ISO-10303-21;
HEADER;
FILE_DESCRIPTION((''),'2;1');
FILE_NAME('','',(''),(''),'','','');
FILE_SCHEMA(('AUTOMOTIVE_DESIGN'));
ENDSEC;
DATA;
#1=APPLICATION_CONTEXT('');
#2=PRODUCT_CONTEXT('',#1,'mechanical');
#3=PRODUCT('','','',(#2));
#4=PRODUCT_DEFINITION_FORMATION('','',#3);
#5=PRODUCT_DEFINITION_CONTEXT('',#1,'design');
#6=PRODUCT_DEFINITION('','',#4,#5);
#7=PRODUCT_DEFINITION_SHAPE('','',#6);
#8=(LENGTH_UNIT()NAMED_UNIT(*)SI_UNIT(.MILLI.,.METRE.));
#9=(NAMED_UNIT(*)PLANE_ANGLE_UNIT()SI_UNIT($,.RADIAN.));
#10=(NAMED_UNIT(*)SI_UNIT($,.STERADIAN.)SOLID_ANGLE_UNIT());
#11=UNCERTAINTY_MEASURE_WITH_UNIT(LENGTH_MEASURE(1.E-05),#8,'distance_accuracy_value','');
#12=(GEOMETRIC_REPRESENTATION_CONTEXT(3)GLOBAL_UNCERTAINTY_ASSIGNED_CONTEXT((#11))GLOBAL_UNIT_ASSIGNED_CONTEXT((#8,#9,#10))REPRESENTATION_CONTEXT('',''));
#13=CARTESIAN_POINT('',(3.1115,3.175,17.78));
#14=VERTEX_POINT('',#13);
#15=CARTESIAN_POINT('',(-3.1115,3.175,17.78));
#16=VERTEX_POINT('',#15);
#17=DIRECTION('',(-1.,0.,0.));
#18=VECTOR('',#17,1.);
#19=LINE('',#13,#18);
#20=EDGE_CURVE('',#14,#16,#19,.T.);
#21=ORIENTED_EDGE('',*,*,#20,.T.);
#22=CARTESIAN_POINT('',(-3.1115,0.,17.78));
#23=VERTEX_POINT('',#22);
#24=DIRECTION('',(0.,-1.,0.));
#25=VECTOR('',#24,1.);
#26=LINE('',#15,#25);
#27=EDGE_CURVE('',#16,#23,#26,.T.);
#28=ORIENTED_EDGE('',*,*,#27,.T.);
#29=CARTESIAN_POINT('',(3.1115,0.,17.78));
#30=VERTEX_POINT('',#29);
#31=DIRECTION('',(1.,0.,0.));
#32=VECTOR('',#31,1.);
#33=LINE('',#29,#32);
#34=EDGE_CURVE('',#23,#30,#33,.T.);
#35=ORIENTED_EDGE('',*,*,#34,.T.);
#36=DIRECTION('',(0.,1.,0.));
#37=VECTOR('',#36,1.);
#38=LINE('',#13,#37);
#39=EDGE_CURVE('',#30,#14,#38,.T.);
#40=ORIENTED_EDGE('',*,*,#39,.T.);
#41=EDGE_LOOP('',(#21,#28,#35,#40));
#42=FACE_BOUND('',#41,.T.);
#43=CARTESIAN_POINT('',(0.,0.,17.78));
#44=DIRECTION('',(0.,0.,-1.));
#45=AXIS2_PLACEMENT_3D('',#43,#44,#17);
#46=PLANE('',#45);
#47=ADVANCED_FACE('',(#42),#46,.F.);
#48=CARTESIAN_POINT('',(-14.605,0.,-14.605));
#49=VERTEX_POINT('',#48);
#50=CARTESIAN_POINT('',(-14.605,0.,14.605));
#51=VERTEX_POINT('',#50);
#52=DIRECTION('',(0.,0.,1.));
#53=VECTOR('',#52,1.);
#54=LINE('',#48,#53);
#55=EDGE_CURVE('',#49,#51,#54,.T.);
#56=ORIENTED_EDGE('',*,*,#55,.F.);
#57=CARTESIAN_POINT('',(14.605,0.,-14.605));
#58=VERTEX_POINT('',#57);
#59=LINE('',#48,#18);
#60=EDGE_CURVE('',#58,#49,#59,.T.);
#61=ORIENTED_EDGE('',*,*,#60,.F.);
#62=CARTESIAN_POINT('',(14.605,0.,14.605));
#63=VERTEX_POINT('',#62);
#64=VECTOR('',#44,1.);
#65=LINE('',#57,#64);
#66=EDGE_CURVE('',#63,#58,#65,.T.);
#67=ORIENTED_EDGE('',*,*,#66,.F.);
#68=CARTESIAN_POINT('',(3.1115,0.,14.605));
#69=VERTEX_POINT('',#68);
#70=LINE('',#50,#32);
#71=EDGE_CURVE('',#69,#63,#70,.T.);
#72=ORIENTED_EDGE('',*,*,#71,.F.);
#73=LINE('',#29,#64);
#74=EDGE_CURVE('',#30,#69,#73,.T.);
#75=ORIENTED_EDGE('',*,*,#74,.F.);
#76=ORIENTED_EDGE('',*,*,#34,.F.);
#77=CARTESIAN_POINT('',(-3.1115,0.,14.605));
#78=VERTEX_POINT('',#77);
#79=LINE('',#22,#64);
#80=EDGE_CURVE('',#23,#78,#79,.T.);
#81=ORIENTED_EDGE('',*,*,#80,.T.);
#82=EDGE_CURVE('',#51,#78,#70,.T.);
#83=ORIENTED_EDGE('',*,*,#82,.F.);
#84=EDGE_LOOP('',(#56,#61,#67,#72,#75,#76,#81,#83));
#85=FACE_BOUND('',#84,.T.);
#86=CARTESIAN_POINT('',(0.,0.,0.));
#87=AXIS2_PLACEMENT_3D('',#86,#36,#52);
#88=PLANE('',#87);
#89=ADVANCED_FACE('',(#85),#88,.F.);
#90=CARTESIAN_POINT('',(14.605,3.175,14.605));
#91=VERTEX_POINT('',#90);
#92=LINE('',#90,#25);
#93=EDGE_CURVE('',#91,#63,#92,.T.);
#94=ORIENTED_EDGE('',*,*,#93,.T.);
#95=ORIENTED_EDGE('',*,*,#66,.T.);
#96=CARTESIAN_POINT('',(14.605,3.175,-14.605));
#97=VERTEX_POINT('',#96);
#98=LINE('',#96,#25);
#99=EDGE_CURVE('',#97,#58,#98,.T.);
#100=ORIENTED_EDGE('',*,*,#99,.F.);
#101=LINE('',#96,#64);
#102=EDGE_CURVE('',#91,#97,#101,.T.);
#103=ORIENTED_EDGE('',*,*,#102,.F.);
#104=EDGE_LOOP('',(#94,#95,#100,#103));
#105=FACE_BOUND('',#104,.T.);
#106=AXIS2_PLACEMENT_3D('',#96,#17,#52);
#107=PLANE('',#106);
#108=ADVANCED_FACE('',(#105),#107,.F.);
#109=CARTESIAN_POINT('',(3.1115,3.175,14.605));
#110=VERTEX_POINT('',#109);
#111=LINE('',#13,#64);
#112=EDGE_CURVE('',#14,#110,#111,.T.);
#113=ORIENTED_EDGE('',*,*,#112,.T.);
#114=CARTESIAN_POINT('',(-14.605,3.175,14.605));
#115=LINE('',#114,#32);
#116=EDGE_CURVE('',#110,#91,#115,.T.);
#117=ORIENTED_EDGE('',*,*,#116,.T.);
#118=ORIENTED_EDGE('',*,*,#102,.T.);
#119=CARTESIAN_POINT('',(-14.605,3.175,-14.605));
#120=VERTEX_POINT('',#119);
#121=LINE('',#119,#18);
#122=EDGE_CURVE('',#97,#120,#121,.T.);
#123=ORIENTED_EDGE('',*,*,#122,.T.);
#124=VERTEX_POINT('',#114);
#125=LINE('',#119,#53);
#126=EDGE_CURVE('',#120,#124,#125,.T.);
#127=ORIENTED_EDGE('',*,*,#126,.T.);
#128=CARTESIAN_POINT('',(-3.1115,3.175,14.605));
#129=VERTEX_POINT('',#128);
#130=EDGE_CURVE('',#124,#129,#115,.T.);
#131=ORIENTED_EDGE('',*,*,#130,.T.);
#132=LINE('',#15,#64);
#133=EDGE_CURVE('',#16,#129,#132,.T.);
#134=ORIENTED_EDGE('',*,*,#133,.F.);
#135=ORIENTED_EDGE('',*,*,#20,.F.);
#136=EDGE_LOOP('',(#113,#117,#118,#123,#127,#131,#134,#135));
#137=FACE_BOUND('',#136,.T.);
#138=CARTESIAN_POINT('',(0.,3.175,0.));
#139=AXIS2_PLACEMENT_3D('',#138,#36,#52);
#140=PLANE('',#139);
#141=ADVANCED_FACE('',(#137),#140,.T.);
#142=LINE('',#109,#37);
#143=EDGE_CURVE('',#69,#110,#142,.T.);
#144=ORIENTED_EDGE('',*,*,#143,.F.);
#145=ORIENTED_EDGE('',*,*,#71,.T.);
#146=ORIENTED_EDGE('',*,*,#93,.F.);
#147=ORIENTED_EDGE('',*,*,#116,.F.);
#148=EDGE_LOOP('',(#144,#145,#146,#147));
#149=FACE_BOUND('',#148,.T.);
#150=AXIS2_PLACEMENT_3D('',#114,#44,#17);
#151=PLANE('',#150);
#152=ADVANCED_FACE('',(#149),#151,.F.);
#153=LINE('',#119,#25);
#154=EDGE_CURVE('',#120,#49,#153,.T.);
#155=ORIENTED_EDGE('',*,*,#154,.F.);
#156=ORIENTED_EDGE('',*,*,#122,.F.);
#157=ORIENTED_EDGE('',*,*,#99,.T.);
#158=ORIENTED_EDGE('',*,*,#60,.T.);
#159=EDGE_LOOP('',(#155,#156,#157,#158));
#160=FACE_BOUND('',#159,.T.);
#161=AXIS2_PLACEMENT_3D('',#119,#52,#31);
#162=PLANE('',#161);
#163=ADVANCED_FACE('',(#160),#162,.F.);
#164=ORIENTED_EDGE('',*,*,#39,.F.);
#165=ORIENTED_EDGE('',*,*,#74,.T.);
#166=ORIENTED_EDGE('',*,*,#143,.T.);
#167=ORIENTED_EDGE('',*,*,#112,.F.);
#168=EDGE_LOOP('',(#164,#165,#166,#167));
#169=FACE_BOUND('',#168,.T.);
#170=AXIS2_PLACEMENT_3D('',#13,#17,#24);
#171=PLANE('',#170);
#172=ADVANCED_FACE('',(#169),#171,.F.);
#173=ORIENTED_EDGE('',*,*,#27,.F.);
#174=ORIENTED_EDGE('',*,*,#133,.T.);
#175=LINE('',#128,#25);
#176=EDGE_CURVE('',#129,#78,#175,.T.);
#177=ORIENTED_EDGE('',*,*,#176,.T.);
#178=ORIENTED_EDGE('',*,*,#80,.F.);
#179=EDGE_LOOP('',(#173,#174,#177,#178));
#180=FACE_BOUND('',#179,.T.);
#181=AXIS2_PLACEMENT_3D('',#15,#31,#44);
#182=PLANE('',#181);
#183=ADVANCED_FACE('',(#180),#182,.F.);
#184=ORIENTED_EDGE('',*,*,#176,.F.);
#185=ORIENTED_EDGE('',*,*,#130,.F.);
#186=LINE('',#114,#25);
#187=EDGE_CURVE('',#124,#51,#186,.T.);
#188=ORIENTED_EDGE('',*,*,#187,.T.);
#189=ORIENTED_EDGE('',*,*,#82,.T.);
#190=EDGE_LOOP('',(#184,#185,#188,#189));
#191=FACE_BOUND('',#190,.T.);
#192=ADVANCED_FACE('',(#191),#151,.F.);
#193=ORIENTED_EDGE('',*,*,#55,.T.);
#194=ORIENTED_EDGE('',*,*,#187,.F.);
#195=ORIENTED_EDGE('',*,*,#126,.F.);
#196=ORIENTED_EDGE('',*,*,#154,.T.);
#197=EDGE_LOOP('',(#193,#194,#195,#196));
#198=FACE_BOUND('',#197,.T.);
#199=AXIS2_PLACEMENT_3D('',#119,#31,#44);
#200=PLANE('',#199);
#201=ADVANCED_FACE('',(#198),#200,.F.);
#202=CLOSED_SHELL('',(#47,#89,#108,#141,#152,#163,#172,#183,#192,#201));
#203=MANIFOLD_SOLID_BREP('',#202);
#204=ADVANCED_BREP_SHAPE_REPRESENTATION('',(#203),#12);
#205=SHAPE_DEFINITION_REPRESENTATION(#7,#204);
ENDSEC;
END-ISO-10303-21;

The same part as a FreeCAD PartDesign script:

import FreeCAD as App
import Part
import Sketcher
from FreeCAD import Vector
Q = App.Units.Quantity

doc = App.newDocument("Part")
body = doc.addObject("PartDesign::Body", "Body")

# Sketch on XZ plane
sketch1 = doc.addObject("Sketcher::SketchObject", "Sketch")
body.addObject(sketch1)
sketch1.AttachmentSupport = (doc.XZ_Plane, [""])
sketch1.MapMode = "FlatFace"
sketch1.addGeometry([
    Part.LineSegment(Vector(-14.605, -14.605, 0), Vector(-14.605, 14.605, 0)),
    Part.LineSegment(Vector(-14.605, 14.605, 0), Vector(14.605, 14.605, 0)),
    Part.LineSegment(Vector(14.605, 14.605, 0), Vector(14.605, -14.605, 0)),
    Part.LineSegment(Vector(14.605, -14.605, 0), Vector(-14.605, -14.605, 0)),
], False)
sketch1.addConstraint([
    Sketcher.Constraint("Coincident", 0, 2, 1, 1),
    Sketcher.Constraint("Coincident", 1, 2, 2, 1),
    Sketcher.Constraint("Coincident", 2, 2, 3, 1),
    Sketcher.Constraint("Coincident", 3, 2, 0, 1),
    Sketcher.Constraint("Vertical", 0),
    Sketcher.Constraint("Horizontal", 1),
    Sketcher.Constraint("Vertical", 2),
    Sketcher.Constraint("Horizontal", 3),
    Sketcher.Constraint("Symmetric", 0, 2, 2, 2, -1, 1),
    Sketcher.Constraint("Equal", 3, 0),
    Sketcher.Constraint("DistanceX", 1, 1, 1, 2, Q("1.15 in")),
])
pad1 = doc.addObject("PartDesign::Pad", "Pad")
body.addObject(pad1)
pad1.Profile = sketch1
pad1.Length = Q("0.125 in")
pad1.Reversed = True

# Sketch on XY plane
sketch2 = doc.addObject("Sketcher::SketchObject", "Sketch001")
body.addObject(sketch2)
sketch2.AttachmentSupport = (doc.XY_Plane, [""])
sketch2.MapMode = "FlatFace"
sketch2.AttachmentOffset = App.Placement(Vector(0, 0, 0.575 * 25.4), App.Rotation())
sketch2.addGeometry([
    Part.LineSegment(Vector(-3.1115, 3.175, 0), Vector(-3.1115, 0, 0)),
    Part.LineSegment(Vector(-3.1115, 0, 0), Vector(3.1115, 0, 0)),
    Part.LineSegment(Vector(3.1115, 0, 0), Vector(3.1115, 3.175, 0)),
    Part.LineSegment(Vector(3.1115, 3.175, 0), Vector(-3.1115, 3.175, 0)),
], False)
sketch2.addConstraint([
    Sketcher.Constraint("Coincident", 0, 2, 1, 1),
    Sketcher.Constraint("Coincident", 1, 2, 2, 1),
    Sketcher.Constraint("Coincident", 2, 2, 3, 1),
    Sketcher.Constraint("Coincident", 3, 2, 0, 1),
    Sketcher.Constraint("Vertical", 0),
    Sketcher.Constraint("Horizontal", 1),
    Sketcher.Constraint("Vertical", 2),
    Sketcher.Constraint("Horizontal", 3),
    Sketcher.Constraint("Symmetric", 0, 2, 1, 2, -1, 1),
    Sketcher.Constraint("DistanceX", 1, 1, 1, 2, Q("0.245 in")),
    Sketcher.Constraint("DistanceY", 0, 2, 0, 1, Q("0.125 in")),
])
pad2 = doc.addObject("PartDesign::Pad", "Pad001")
body.addObject(pad2)
pad2.Profile = sketch2
pad2.Length = Q("0.125 in")

doc.recompute()
